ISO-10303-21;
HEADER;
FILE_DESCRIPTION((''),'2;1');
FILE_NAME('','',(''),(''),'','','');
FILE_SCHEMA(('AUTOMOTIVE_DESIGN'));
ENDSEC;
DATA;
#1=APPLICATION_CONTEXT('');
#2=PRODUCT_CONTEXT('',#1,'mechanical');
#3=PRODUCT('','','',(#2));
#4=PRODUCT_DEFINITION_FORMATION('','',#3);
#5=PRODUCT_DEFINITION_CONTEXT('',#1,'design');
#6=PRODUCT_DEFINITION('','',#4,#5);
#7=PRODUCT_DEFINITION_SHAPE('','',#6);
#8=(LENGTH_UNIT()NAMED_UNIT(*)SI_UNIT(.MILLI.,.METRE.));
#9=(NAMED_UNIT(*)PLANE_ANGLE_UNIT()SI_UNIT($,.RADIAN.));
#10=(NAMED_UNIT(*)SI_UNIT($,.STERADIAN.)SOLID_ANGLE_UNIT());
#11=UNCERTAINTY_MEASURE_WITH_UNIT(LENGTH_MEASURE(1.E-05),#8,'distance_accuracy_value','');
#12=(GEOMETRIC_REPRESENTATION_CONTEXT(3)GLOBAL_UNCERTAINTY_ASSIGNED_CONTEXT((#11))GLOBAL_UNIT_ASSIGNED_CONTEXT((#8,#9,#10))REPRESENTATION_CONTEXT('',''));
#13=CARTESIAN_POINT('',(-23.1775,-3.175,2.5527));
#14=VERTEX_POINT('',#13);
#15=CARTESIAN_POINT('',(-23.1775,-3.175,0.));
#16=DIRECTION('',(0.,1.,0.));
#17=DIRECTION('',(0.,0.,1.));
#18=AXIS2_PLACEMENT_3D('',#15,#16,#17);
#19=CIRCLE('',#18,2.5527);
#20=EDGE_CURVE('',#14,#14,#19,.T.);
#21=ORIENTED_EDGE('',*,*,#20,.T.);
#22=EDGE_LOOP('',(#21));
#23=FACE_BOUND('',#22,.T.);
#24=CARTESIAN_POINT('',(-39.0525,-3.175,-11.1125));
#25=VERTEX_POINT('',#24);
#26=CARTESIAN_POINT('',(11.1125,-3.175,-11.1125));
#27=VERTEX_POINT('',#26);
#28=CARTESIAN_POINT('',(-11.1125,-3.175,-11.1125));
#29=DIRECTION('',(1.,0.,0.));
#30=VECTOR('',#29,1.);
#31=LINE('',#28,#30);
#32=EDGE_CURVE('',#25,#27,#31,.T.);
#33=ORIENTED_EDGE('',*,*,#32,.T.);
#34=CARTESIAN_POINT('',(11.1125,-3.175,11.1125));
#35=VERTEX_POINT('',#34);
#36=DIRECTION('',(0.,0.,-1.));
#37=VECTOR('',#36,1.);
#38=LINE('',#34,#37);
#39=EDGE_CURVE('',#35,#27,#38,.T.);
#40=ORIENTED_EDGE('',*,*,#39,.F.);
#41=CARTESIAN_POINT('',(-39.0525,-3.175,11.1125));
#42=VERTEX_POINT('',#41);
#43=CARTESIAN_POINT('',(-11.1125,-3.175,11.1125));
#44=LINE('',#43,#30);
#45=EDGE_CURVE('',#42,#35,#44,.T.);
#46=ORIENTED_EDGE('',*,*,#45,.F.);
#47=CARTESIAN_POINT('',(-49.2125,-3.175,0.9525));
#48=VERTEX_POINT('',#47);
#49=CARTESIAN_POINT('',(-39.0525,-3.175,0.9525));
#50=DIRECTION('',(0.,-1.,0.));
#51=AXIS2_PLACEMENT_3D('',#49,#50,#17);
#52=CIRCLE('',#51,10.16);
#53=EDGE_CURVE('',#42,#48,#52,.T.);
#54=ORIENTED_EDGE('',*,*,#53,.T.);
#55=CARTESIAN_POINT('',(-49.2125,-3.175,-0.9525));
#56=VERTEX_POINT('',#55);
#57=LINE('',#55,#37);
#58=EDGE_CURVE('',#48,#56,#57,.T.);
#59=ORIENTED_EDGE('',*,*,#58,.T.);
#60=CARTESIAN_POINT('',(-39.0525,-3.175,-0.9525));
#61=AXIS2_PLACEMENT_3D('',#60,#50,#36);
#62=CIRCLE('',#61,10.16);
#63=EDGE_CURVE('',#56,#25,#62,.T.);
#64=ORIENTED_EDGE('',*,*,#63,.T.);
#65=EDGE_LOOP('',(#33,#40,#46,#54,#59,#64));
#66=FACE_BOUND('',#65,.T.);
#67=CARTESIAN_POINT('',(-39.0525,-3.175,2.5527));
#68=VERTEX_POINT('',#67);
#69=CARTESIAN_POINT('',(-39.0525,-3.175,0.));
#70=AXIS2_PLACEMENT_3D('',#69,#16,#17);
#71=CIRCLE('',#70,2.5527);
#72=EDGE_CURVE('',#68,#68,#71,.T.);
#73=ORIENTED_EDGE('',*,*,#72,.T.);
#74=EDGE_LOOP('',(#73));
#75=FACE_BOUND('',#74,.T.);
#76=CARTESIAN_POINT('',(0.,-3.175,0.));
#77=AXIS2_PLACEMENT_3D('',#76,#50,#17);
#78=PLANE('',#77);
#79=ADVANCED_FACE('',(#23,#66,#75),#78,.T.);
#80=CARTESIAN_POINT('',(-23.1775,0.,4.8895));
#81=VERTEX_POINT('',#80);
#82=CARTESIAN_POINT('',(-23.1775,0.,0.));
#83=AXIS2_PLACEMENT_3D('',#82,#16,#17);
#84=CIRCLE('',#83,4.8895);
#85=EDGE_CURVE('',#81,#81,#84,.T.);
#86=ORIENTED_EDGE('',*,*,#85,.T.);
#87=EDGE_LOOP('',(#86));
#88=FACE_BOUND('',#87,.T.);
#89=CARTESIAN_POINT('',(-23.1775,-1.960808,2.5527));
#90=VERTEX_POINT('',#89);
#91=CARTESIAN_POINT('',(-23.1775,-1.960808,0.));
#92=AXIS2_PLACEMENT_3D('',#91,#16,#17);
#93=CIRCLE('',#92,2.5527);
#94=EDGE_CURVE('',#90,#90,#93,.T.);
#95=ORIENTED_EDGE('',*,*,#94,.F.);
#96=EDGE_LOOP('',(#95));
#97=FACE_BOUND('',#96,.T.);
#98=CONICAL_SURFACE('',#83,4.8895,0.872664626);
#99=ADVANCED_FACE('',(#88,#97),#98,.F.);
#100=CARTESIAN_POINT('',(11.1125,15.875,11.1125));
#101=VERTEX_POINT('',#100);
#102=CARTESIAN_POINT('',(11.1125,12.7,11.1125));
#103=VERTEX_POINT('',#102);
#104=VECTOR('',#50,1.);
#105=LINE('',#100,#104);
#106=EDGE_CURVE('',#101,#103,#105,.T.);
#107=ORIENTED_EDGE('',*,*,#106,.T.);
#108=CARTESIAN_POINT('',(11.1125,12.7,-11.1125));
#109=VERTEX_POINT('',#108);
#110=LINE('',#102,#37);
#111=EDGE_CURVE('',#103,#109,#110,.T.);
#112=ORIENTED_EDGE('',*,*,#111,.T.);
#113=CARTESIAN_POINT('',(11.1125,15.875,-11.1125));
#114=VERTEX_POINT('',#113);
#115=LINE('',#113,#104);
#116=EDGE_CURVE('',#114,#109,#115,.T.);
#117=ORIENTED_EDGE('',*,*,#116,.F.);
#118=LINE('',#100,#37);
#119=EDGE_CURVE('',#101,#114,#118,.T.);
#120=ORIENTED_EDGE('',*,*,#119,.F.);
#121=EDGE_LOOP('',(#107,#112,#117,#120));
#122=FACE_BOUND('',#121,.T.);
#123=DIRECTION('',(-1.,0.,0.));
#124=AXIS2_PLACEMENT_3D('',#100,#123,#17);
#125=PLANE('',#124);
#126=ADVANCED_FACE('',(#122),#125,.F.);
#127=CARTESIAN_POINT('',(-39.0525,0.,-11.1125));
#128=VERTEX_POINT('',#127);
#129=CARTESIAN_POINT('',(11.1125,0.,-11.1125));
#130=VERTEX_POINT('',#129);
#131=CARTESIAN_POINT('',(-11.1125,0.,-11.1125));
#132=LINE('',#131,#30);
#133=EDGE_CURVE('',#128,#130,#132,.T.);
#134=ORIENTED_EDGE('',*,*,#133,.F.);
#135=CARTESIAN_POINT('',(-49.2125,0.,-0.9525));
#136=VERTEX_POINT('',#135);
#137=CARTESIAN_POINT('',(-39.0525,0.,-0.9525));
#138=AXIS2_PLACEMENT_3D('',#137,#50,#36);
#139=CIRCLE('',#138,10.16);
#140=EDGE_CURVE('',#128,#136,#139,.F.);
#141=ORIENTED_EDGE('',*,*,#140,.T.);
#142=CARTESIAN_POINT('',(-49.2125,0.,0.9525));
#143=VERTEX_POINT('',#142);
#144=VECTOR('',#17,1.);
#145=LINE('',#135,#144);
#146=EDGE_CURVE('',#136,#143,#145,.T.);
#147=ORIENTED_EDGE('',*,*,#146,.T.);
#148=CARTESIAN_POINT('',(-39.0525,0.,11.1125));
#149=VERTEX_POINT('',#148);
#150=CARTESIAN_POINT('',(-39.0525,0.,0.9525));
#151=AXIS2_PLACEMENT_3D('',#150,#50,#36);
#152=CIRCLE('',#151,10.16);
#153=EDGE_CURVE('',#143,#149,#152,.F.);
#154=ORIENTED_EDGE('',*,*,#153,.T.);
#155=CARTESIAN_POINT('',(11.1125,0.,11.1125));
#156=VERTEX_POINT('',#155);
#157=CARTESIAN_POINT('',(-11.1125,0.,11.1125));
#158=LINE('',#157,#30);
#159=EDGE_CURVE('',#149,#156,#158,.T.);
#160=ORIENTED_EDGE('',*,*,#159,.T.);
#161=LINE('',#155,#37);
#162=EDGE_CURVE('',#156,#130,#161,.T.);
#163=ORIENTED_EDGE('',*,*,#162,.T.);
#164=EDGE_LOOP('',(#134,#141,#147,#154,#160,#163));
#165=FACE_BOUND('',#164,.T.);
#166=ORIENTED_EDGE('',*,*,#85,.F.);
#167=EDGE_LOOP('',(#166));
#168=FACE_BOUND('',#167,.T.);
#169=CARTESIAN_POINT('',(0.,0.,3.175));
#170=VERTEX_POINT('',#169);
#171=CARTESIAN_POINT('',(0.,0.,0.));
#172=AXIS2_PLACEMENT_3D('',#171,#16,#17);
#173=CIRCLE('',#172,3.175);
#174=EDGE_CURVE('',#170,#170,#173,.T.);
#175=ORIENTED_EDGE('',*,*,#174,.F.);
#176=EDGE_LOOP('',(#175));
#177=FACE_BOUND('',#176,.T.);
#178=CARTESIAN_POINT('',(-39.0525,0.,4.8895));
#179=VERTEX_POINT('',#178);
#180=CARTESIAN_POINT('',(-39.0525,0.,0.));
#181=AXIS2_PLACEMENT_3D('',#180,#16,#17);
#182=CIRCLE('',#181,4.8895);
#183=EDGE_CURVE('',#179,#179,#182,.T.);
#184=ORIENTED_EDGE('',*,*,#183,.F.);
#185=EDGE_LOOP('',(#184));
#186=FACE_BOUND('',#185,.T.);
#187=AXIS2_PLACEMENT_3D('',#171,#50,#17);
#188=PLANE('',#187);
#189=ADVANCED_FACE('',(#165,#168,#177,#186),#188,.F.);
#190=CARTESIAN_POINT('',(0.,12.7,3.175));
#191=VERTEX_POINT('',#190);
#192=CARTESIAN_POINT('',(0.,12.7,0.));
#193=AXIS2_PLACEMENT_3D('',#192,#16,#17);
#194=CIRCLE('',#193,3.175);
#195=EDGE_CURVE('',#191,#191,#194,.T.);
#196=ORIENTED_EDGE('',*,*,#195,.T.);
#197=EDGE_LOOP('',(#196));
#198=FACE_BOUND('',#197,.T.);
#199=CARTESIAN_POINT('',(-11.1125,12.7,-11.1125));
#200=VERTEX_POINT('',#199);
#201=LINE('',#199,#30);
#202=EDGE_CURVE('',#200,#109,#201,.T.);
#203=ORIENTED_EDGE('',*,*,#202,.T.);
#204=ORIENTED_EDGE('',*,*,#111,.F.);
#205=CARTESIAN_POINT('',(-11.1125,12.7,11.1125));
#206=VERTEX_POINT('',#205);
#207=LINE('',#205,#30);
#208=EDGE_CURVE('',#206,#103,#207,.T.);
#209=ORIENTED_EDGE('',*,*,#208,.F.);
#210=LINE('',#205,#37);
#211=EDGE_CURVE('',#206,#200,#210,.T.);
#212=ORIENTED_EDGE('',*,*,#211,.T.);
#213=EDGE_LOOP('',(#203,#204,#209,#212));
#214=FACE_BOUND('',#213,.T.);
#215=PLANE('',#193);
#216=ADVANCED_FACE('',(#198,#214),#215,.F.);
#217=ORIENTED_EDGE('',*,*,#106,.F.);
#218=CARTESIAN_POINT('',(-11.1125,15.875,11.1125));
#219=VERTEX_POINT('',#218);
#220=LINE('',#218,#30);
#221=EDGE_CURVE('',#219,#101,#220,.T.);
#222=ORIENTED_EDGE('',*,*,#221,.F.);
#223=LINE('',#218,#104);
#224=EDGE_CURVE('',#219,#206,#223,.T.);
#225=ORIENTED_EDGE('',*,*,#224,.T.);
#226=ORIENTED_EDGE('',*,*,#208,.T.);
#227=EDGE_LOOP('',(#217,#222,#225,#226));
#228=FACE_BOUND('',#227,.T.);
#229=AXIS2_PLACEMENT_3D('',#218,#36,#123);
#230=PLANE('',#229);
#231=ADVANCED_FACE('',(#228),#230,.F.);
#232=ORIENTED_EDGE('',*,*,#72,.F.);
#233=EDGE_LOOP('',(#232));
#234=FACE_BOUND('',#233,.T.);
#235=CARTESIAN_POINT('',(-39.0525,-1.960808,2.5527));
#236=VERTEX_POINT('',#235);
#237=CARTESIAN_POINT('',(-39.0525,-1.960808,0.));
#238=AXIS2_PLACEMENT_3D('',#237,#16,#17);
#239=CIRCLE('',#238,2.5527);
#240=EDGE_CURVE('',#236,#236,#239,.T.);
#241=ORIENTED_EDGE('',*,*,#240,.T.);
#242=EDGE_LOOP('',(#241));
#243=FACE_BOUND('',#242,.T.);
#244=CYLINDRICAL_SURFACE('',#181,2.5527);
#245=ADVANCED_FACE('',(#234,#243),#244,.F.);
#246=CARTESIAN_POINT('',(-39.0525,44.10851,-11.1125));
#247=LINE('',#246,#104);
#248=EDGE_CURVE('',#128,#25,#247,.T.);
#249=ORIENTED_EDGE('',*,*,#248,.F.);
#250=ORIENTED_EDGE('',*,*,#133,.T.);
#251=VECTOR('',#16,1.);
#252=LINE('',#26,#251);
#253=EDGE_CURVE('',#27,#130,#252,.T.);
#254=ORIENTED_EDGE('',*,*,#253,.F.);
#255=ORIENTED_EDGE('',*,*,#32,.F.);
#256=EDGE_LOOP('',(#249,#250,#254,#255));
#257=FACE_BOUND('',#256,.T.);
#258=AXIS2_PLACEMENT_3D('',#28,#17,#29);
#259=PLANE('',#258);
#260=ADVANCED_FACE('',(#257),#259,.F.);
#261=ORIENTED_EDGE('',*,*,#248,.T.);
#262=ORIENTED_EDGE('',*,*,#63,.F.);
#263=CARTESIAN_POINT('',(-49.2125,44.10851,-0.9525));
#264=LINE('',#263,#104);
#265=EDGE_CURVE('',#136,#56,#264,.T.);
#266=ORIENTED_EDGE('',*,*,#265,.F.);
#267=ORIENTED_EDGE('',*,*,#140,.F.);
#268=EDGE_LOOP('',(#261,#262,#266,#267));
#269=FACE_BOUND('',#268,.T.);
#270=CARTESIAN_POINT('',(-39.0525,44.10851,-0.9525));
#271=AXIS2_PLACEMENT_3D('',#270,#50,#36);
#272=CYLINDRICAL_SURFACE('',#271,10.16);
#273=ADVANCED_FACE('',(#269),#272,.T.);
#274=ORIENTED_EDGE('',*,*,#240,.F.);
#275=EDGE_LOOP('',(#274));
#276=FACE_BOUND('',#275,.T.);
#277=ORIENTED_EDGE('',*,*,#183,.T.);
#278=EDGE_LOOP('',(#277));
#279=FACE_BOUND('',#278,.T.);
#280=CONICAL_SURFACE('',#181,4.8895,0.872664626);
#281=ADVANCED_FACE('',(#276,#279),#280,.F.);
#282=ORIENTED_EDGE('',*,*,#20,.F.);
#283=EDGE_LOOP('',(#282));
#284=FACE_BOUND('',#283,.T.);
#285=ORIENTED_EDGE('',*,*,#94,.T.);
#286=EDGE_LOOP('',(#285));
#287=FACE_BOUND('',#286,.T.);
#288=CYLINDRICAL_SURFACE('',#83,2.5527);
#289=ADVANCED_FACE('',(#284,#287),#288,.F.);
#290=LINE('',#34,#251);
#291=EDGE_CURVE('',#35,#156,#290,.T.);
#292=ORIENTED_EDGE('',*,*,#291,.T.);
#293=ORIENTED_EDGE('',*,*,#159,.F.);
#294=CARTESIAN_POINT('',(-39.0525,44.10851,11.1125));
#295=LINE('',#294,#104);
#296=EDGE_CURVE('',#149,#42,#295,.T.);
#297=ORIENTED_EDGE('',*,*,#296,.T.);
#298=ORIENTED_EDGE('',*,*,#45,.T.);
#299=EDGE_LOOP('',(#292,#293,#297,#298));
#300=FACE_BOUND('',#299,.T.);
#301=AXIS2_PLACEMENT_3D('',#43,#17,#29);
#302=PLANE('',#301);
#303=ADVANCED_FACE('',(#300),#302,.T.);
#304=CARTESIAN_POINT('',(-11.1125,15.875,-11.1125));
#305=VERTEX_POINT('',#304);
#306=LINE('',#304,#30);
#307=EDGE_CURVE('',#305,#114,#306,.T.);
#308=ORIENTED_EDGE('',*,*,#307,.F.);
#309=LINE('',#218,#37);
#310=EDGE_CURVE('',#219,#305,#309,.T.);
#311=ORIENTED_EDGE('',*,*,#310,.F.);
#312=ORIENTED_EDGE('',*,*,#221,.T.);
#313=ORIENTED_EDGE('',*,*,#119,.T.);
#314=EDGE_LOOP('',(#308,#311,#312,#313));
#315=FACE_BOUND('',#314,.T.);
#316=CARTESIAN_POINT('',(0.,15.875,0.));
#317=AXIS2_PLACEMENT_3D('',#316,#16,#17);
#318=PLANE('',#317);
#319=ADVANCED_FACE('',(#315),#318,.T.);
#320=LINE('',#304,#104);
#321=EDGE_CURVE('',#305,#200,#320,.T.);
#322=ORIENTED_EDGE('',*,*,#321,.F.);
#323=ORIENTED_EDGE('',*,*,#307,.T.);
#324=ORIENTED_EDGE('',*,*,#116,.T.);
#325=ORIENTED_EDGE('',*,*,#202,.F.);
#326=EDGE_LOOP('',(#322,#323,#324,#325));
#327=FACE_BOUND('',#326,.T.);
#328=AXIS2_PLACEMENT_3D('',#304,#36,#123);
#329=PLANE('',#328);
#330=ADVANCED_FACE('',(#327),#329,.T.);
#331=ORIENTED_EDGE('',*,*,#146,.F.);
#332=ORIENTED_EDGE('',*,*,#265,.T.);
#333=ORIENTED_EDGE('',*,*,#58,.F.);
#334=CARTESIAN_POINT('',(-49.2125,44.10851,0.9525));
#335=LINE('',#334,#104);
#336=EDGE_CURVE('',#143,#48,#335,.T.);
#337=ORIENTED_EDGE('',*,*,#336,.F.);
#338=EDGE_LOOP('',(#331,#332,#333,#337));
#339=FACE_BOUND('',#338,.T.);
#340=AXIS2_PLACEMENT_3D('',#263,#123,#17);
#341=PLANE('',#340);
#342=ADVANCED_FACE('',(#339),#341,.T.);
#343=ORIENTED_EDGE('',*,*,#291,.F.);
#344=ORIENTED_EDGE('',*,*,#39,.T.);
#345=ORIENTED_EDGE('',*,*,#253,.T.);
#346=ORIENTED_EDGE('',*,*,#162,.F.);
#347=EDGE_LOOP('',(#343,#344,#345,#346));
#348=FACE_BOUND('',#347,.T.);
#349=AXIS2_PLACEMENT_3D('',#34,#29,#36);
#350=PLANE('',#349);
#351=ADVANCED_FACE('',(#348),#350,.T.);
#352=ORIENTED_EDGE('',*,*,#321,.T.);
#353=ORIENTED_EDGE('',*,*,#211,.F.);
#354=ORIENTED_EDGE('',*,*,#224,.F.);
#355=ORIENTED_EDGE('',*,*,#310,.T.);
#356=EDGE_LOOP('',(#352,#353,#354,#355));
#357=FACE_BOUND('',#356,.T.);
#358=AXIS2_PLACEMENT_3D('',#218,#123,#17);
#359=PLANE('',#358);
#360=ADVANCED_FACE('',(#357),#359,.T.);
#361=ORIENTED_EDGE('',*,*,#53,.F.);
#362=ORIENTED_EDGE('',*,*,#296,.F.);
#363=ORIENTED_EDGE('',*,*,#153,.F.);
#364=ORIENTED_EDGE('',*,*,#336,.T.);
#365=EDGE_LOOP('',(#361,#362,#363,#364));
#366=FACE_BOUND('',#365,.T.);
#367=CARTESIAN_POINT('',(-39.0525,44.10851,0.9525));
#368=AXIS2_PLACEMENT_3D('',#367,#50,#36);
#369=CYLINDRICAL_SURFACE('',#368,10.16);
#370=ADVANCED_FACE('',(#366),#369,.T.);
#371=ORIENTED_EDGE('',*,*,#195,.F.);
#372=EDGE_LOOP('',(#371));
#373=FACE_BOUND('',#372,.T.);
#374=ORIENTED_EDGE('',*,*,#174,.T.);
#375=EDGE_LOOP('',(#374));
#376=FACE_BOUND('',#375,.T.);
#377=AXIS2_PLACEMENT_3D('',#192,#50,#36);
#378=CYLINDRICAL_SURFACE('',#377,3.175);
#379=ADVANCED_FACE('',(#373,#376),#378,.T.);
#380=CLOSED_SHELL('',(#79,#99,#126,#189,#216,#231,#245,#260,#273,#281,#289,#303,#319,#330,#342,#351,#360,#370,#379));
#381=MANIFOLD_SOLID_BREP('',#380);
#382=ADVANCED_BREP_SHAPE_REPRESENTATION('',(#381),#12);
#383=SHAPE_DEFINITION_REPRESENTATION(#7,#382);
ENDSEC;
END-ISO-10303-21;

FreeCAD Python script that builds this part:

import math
import FreeCAD as App
import Part
import Sketcher

V = App.Vector
Q = App.Units.Quantity

doc = App.newDocument("Part")
params = doc.addObject("Spreadsheet::Sheet", "Params")
for row, (alias, value) in enumerate([
    ("sketch1_diameter", "0.25 in"),
    ("pad1_length", "0.5 in"),
    ("sketch2_width", "0.875 in"),
    ("pad2_length", "0.125 in"),
    ("sketch3_radius", "0.4 in"),
    ("sketch3_width", "1.1 in"),
    ("sketch3_height", "0.875 in"),
    ("pad3_length", "0.125 in"),
    ("sketch4_width", "0.125 in"),
    ("groove_angle", "360 deg"),
    ("linearpattern_pitch", "0.625 in"),
], start=1):
    params.set(f"A{row}", alias)
    params.set(f"B{row}", "=" + value)
    params.setAlias(f"B{row}", alias)

body = doc.addObject("PartDesign::Body", "Body")

# Sketch on XZ plane
sketch1 = doc.addObject("Sketcher::SketchObject", "Sketch")
body.addObject(sketch1)
sketch1.AttachmentSupport = (doc.XZ_Plane, [""])
sketch1.MapMode = "FlatFace"
sketch1.addGeometry(Part.Circle(V(0, 0, 0), V(0, 0, 1), 3.175), False)
sketch1.addConstraint([
    Sketcher.Constraint("Coincident", 0, 3, -1, 1),
    Sketcher.Constraint("Diameter", 0, Q("0.25 in")),
])
sketch1.setExpression("Constraints[1]", "Params.sketch1_diameter")
pad1 = doc.addObject("PartDesign::Pad", "Pad")
body.addObject(pad1)
pad1.Profile = sketch1
pad1.setExpression("Length", "Params.pad1_length")
pad1.Reversed = True

# Sketch on XZ plane
sketch2 = doc.addObject("Sketcher::SketchObject", "Sketch001")
body.addObject(sketch2)
sketch2.AttachmentSupport = (doc.XZ_Plane, [""])
sketch2.MapMode = "FlatFace"
sketch2.AttachmentOffset = App.Placement(V(0, 0, -0.5 * 25.4), App.Rotation())
sketch2.addGeometry([
    Part.LineSegment(V(-11.1125, -11.1125, 0), V(-11.1125, 11.1125, 0)),
    Part.LineSegment(V(-11.1125, 11.1125, 0), V(11.1125, 11.1125, 0)),
    Part.LineSegment(V(11.1125, 11.1125, 0), V(11.1125, -11.1125, 0)),
    Part.LineSegment(V(11.1125, -11.1125, 0), V(-11.1125, -11.1125, 0)),
], False)
sketch2.addConstraint([
    Sketcher.Constraint("Coincident", 0, 2, 1, 1),
    Sketcher.Constraint("Coincident", 1, 2, 2, 1),
    Sketcher.Constraint("Coincident", 2, 2, 3, 1),
    Sketcher.Constraint("Coincident", 3, 2, 0, 1),
    Sketcher.Constraint("Vertical", 0),
    Sketcher.Constraint("Horizontal", 1),
    Sketcher.Constraint("Vertical", 2),
    Sketcher.Constraint("Horizontal", 3),
    Sketcher.Constraint("Symmetric", 0, 2, 2, 2, -1, 1),
    Sketcher.Constraint("Equal", 3, 0),
    Sketcher.Constraint("DistanceX", 1, 1, 1, 2, Q("0.875 in")),
])
sketch2.setExpression("Constraints[10]", "Params.sketch2_width")
pad2 = doc.addObject("PartDesign::Pad", "Pad001")
body.addObject(pad2)
pad2.Profile = sketch2
pad2.setExpression("Length", "Params.pad2_length")
pad2.Reversed = True
doc.recompute()

datumplane = doc.addObject("PartDesign::Plane", "DatumPlane")
body.addObject(datumplane)
datumplane.AttachmentSupport = (doc.XZ_Plane, [""])
datumplane.MapMode = "FlatFace"
datumplane.AttachmentOffset = App.Placement(V(0, 0, -0.25 * 25.4), App.Rotation())
mirrored = doc.addObject("PartDesign::Mirrored", "Mirrored")
body.addObject(mirrored)
mirrored.Originals = [pad2]
mirrored.MirrorPlane = (datumplane, [""])
body.Tip = mirrored

# Sketch on XZ plane
sketch3 = doc.addObject("Sketcher::SketchObject", "Sketch002")
body.addObject(sketch3)
sketch3.AttachmentSupport = (doc.XZ_Plane, [""])
sketch3.MapMode = "FlatFace"
sketch3.AttachmentOffset = App.Placement(V(0, 0, 0.125 * 25.4), App.Rotation())
sketch3.addGeometry([
    Part.LineSegment(V(-39.0525, -11.1125, 0), V(-11.1125, -11.1125, 0)),  # 0
    Part.LineSegment(V(-11.1125, -11.1125, 0), V(-11.1125, 11.1125, 0)),  # 1
    Part.LineSegment(V(-11.1125, 11.1125, 0), V(-39.0525, 11.1125, 0)),  # 2
    Part.ArcOfCircle(Part.Circle(V(-39.0525, 0.9525, 0), V(0, 0, 1), 10.16), math.radians(90), math.radians(180)),  # 3
    Part.LineSegment(V(-49.2125, 0.9525, 0), V(-49.2125, -0.9525, 0)),  # 4
    Part.ArcOfCircle(Part.Circle(V(-39.0525, -0.9525, 0), V(0, 0, 1), 10.16), math.radians(180), math.radians(270)),  # 5
], False)
sketch3.addConstraint([
    Sketcher.Constraint("Coincident", 0, 2, 1, 1),
    Sketcher.Constraint("Coincident", 1, 2, 2, 1),
    Sketcher.Constraint("Tangent", 2, 2, 3, 1),
    Sketcher.Constraint("Tangent", 3, 2, 4, 1),
    Sketcher.Constraint("Tangent", 4, 2, 5, 1),
    Sketcher.Constraint("Tangent", 5, 2, 0, 1),
    Sketcher.Constraint("Horizontal", 0),
    Sketcher.Constraint("Vertical", 1),
    Sketcher.Constraint("Horizontal", 2),
    Sketcher.Constraint("Vertical", 4),
    Sketcher.Constraint("Equal", 3, 5),
    Sketcher.Constraint("Radius", 3, Q("0.4 in")),
    Sketcher.Constraint("DistanceX", 0, 1, 0, 2, Q("1.1 in")),
    Sketcher.Constraint("DistanceY", 1, 1, 1, 2, Q("0.875 in")),
    Sketcher.Constraint("DistanceX", 0, 2, -1, 1, Q("0.4375 in")),
    Sketcher.Constraint("DistanceY", 0, 2, -1, 1, Q("0.4375 in")),
])
sketch3.setExpression("Constraints[11]", "Params.sketch3_radius")
sketch3.setExpression("Constraints[12]", "Params.sketch3_width")
sketch3.setExpression("Constraints[13]", "Params.sketch3_height")
pad3 = doc.addObject("PartDesign::Pad", "Pad002")
body.addObject(pad3)
pad3.Profile = sketch3
pad3.setExpression("Length", "Params.pad3_length")
pad3.Reversed = True

# Sketch on YZ plane
sketch4 = doc.addObject("Sketcher::SketchObject", "Sketch003")
body.addObject(sketch4)
sketch4.AttachmentSupport = (doc.YZ_Plane, [""])
sketch4.MapMode = "FlatFace"
sketch4.AttachmentOffset = App.Placement(V(0, 0, -1.5375 * 25.4), App.Rotation())
sketch4.addGeometry([
    Part.LineSegment(V(-3.175, 0, 0), V(0, 0, 0)),  # 0
    Part.LineSegment(V(0, 0, 0), V(0, 4.8895, 0)),  # 1
    Part.LineSegment(V(0, 4.8895, 0), V(-1.960808, 2.5527, 0)),  # 2
    Part.LineSegment(V(-1.960808, 2.5527, 0), V(-3.175, 2.5527, 0)),  # 3
    Part.LineSegment(V(-3.175, 2.5527, 0), V(-3.175, 0, 0)),  # 4
], False)
sketch4.addConstraint([
    Sketcher.Constraint("Coincident", 0, 2, 1, 1),
    Sketcher.Constraint("Coincident", 1, 2, 2, 1),
    Sketcher.Constraint("Coincident", 2, 2, 3, 1),
    Sketcher.Constraint("Coincident", 3, 2, 4, 1),
    Sketcher.Constraint("Coincident", 4, 2, 0, 1),
    Sketcher.Constraint("Horizontal", 0),
    Sketcher.Constraint("Vertical", 1),
    Sketcher.Constraint("Horizontal", 3),
    Sketcher.Constraint("Vertical", 4),
    Sketcher.Constraint("Coincident", 0, 2, -1, 1),
    Sketcher.Constraint("Angle", 2, Q("-130 deg")),
    Sketcher.Constraint("DistanceX", 0, 1, 0, 2, Q("0.125 in")),
    Sketcher.Constraint("DistanceY", 1, 1, 1, 2, Q("0.1925 in")),
    Sketcher.Constraint("DistanceY", 4, 2, 4, 1, Q("0.1005 in")),
])
sketch4.setExpression("Constraints[11]", "Params.sketch4_width")
groove = doc.addObject("PartDesign::Groove", "Groove")
body.addObject(groove)
groove.Profile = sketch4
groove.ReferenceAxis = (sketch4, ["H_Axis"])
groove.setExpression("Angle", "Params.groove_angle")
doc.recompute()

linearpattern = doc.addObject("PartDesign::LinearPattern", "LinearPattern")
body.addObject(linearpattern)
linearpattern.Originals = [groove]
linearpattern.Direction = (doc.X_Axis, [""])
linearpattern.Mode = "offset"
linearpattern.setExpression("Offset", "Params.linearpattern_pitch")
linearpattern.Occurrences = 2
body.Tip = linearpattern

doc.recompute()
